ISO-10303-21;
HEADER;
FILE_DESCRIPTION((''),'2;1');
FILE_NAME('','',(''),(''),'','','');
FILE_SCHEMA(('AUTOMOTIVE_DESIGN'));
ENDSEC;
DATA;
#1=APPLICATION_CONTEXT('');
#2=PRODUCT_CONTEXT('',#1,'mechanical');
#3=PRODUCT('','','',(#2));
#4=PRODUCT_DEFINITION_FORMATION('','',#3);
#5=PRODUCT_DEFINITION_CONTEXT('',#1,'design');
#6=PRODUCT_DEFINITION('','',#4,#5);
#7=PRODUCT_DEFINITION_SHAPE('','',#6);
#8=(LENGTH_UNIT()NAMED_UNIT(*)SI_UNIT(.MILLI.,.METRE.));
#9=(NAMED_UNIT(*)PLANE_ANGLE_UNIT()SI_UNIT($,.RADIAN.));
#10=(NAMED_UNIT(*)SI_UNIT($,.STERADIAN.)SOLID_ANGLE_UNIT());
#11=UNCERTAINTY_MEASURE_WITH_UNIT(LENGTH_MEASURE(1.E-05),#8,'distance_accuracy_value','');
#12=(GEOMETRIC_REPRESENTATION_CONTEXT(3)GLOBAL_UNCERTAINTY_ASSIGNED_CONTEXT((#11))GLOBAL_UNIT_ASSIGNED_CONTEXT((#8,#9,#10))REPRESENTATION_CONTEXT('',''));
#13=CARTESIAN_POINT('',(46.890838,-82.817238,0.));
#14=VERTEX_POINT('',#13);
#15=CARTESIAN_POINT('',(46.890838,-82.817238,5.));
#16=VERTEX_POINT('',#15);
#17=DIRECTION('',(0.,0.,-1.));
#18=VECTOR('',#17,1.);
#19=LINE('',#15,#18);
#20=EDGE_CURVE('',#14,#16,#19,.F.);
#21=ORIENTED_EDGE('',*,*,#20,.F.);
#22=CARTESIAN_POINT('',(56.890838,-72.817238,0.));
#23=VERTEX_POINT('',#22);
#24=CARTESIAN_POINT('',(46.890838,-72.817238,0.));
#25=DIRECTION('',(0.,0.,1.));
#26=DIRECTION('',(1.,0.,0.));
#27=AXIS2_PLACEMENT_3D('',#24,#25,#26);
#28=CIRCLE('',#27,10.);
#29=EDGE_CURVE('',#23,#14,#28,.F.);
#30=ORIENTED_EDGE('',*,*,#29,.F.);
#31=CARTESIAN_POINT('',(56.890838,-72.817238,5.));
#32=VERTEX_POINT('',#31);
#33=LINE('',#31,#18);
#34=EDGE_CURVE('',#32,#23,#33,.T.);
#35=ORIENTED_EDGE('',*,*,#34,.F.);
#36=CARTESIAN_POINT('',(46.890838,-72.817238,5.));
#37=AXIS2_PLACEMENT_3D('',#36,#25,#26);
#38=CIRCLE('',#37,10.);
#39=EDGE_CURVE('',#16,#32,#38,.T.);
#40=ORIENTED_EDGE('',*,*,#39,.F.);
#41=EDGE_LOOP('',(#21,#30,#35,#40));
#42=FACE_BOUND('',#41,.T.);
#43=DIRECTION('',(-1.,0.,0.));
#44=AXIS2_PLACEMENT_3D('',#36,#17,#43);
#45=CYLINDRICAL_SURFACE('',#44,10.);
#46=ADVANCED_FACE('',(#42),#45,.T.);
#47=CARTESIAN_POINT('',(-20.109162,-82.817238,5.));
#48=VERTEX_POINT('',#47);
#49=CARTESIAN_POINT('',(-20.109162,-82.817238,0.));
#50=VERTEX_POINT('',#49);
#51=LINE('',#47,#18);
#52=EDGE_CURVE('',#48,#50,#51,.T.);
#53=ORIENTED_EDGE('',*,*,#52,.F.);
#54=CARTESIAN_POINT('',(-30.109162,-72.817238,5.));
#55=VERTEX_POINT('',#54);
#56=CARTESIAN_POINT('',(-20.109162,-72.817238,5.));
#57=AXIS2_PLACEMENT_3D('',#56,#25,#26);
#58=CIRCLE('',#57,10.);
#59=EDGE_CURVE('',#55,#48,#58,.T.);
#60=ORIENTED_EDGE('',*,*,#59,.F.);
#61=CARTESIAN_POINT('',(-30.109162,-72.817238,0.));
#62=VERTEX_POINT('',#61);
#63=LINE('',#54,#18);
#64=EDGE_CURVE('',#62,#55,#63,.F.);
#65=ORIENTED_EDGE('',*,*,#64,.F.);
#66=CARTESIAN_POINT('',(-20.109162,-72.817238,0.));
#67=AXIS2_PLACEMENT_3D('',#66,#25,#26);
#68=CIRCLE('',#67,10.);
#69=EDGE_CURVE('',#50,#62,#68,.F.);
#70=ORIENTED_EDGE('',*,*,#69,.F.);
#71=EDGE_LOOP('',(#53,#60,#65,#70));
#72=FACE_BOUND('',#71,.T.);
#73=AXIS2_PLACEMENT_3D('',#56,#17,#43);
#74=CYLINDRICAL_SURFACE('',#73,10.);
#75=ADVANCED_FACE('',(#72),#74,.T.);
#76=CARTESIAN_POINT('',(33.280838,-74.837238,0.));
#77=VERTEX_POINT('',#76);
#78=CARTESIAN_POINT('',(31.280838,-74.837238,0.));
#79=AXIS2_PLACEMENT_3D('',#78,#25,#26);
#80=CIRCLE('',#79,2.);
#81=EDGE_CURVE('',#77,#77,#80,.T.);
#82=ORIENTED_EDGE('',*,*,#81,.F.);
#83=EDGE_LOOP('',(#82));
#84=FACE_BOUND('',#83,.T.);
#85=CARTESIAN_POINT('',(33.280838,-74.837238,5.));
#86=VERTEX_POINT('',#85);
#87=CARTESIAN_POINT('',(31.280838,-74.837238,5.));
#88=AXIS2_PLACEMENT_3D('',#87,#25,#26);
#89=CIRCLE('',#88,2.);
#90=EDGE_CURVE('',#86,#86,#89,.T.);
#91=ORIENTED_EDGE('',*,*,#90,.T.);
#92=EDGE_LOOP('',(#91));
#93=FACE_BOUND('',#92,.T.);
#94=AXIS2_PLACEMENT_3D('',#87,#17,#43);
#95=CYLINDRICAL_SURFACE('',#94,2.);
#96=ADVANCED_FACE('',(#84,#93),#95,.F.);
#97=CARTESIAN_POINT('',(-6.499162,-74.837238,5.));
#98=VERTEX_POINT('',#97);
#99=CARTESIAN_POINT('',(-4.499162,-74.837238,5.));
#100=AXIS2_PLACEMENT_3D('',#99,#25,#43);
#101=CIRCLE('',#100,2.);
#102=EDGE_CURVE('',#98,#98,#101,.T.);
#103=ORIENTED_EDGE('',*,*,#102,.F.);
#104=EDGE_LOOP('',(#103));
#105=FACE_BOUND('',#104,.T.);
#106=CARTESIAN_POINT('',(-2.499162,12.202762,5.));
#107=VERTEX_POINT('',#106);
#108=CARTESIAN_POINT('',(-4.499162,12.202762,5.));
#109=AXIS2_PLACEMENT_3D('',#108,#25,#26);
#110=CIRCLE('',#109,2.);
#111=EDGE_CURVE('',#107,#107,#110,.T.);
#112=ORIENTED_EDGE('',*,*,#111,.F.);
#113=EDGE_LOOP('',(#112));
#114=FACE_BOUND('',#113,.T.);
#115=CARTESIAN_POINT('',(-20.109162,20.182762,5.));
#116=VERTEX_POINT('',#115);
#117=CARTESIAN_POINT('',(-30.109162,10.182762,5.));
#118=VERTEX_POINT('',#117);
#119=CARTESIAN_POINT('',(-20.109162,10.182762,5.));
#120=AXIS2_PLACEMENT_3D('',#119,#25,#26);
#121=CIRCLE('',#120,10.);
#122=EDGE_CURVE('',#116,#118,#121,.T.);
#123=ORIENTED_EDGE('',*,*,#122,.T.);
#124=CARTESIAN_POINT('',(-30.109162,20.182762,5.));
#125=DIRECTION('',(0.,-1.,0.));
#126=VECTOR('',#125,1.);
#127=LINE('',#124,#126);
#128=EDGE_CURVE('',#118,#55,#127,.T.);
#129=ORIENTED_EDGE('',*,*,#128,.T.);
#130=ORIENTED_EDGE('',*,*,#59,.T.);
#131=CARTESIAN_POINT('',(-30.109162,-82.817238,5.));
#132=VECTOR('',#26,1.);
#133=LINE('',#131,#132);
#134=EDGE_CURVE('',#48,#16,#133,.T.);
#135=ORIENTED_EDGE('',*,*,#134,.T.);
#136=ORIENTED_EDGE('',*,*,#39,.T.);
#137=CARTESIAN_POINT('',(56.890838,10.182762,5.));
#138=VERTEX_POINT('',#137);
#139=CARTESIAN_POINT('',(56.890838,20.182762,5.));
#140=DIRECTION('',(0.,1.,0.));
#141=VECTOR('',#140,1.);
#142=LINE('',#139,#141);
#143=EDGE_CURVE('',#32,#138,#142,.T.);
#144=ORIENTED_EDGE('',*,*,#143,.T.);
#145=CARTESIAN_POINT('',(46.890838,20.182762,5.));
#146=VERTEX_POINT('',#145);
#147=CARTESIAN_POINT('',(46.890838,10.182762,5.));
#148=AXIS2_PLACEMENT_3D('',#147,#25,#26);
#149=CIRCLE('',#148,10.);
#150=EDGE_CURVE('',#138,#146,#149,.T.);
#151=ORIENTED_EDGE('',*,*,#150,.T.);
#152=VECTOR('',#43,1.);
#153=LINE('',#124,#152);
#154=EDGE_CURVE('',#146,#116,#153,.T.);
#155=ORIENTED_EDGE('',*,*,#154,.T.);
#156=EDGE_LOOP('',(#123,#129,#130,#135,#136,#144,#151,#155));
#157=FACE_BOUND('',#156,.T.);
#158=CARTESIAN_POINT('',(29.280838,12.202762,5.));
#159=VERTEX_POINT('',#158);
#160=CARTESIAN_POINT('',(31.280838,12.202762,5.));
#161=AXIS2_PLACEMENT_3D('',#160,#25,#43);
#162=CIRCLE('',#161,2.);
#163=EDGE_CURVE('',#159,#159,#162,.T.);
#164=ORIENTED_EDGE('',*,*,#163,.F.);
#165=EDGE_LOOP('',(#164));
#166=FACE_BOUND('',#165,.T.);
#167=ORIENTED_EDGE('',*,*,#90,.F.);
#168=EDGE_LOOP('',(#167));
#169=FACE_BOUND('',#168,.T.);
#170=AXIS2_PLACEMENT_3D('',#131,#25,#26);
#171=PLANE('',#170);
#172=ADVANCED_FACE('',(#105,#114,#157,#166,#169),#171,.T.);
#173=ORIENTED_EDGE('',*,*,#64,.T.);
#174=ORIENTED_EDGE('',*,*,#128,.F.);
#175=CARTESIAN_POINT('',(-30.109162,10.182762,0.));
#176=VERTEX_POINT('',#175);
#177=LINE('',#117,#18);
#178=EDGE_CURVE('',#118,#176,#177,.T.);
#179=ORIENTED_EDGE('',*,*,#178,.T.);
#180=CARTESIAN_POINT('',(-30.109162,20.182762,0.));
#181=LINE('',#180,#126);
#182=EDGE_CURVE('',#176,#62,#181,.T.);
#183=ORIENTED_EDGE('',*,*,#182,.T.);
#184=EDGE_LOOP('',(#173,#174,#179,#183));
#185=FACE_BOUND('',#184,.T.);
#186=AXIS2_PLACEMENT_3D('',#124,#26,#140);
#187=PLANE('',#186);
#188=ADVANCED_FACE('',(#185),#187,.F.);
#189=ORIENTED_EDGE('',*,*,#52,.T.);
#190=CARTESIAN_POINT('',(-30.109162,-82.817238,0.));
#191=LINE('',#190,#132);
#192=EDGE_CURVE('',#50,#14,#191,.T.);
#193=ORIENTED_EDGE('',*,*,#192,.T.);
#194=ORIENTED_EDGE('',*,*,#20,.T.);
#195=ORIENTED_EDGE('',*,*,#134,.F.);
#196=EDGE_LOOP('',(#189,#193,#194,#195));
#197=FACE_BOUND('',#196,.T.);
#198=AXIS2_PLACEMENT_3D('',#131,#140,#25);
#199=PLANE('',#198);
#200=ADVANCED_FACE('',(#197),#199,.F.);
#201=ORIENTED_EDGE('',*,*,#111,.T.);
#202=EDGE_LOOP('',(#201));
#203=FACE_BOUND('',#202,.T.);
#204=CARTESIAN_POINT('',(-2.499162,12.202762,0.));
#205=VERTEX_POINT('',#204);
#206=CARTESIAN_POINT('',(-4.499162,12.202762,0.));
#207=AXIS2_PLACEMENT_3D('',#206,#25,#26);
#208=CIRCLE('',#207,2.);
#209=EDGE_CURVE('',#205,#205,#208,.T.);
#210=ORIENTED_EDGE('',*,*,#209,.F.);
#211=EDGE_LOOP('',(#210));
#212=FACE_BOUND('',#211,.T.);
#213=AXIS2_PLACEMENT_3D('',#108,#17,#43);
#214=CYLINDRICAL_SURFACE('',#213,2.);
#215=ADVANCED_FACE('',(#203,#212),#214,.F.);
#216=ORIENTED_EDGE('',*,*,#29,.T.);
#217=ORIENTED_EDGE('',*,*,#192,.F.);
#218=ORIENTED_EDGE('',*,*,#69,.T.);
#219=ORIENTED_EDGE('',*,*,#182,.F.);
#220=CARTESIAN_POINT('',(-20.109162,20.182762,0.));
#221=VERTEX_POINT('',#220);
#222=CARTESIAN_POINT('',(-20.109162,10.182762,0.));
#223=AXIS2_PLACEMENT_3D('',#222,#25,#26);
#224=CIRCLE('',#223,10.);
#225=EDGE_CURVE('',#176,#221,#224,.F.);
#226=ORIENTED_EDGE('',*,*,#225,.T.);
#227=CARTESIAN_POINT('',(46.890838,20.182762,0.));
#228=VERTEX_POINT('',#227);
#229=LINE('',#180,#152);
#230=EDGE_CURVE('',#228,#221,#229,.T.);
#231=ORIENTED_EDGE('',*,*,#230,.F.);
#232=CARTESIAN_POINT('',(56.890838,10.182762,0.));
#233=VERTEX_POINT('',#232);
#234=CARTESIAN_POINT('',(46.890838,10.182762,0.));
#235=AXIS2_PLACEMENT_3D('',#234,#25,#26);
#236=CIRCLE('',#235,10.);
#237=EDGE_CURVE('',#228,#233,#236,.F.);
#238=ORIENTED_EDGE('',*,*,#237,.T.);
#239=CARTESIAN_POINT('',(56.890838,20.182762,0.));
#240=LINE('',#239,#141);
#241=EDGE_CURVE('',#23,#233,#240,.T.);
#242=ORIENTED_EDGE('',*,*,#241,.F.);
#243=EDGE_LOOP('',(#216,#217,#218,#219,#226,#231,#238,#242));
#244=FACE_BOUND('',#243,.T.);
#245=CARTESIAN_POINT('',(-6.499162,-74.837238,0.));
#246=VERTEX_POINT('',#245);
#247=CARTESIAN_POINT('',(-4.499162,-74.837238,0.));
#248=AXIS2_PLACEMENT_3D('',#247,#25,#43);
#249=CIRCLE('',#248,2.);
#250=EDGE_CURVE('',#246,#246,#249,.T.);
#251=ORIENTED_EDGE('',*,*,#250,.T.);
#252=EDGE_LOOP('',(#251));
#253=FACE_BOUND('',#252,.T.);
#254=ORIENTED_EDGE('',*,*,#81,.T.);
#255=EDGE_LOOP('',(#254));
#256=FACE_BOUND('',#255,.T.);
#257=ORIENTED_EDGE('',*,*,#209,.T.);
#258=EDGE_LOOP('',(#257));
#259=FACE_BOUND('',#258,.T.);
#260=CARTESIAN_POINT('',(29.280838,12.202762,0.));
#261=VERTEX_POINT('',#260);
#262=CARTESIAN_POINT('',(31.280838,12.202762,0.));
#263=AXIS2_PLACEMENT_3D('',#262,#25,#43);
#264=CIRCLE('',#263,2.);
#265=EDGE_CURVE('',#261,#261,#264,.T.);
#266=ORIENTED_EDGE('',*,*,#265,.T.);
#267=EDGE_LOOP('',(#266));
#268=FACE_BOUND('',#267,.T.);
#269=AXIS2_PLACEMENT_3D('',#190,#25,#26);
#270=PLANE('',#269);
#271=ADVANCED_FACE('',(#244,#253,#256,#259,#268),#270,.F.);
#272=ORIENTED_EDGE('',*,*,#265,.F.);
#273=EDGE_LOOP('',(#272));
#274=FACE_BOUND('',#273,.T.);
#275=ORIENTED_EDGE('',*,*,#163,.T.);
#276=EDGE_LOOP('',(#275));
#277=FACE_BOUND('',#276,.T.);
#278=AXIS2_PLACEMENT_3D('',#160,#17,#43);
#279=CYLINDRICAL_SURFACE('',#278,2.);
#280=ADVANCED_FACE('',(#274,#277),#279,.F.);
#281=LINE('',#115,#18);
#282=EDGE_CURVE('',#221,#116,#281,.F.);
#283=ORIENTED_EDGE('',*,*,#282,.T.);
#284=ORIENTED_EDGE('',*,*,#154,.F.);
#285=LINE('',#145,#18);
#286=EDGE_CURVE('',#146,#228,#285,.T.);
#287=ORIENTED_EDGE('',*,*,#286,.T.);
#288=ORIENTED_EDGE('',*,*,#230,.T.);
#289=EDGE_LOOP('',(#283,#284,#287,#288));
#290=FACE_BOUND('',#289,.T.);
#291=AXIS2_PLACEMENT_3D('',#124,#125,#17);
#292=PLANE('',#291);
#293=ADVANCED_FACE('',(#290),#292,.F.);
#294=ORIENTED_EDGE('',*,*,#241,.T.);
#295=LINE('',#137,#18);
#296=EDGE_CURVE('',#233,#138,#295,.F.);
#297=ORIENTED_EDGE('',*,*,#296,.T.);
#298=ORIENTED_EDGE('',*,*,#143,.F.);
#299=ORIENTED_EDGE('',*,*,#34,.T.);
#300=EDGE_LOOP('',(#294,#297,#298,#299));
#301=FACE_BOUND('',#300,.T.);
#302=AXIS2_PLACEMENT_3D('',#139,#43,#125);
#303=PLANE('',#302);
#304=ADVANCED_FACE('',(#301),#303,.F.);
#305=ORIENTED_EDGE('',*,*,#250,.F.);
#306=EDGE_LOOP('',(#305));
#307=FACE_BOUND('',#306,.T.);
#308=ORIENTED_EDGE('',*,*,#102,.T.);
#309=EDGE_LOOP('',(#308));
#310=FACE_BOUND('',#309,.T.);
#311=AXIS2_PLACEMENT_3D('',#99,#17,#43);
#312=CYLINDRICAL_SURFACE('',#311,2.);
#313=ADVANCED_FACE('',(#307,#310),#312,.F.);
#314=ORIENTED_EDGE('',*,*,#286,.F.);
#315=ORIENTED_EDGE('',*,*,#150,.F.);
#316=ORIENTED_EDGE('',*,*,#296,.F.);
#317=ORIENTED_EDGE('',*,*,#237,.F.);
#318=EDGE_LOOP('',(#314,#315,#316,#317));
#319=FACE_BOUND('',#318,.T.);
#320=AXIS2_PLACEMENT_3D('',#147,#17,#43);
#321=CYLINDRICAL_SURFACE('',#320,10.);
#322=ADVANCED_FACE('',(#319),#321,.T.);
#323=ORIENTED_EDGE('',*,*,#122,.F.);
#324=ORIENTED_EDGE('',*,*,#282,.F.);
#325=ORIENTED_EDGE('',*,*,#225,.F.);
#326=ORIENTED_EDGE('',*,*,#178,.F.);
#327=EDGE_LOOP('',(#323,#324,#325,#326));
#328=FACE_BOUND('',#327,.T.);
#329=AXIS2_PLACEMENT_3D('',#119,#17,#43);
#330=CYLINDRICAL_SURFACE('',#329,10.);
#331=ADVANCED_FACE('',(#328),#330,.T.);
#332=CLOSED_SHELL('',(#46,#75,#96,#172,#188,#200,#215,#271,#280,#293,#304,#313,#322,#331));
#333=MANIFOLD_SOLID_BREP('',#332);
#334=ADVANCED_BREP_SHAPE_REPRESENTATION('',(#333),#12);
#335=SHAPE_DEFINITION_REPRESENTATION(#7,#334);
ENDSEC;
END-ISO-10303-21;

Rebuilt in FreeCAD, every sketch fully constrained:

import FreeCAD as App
import Part
import Sketcher
from FreeCAD import Vector


def edges_at(feature, points):
    """Names of the edges that pass closest to the given points."""
    edges = feature.Shape.Edges
    near = lambda p: min(range(len(edges)), key=lambda i: edges[i].distToShape(Part.Vertex(*p))[0])
    return sorted({f"Edge{near(p) + 1}" for p in points})


def add_polygon(sketch, points):
    """Adds a closed chain of lines whose ends are joined by coincident constraints."""
    first, n = sketch.GeometryCount, len(points)
    for a, b in zip(points, points[1:] + points[:1]):
        sketch.addGeometry(Part.LineSegment(App.Vector(*a, 0), App.Vector(*b, 0)), False)
    for i in range(n):
        sketch.addConstraint(Sketcher.Constraint("Coincident", first + i, 2, first + (i + 1) % n, 1))

doc = App.newDocument("Part")
body = doc.addObject("PartDesign::Body", "Body")

# Sketch on XY plane
sketch1 = body.newObject("Sketcher::SketchObject", "Sketch")
sketch1.AttachmentSupport = (doc.getObject("XY_Plane"), [""])
sketch1.MapMode = "FlatFace"
add_polygon(sketch1, [(-30.109162, 20.182762), (-30.109162, -82.817238), (56.890838, -82.817238), (56.890838, 20.182762)])  # lines 0-3
sketch1.addGeometry(Part.Circle(Vector(-4.499162, -74.837238, 0), Vector(0, 0, 1), 2), False)  # 4
sketch1.addGeometry(Part.Circle(Vector(31.280838, -74.837238, 0), Vector(0, 0, 1), 2), False)  # 5
sketch1.addGeometry(Part.Circle(Vector(-4.499162, 12.202762, 0), Vector(0, 0, 1), 2), False)  # 6
sketch1.addGeometry(Part.Circle(Vector(31.280838, 12.202762, 0), Vector(0, 0, 1), 2), False)  # 7
sketch1.addConstraint([
    Sketcher.Constraint("Vertical", 0),
    Sketcher.Constraint("Horizontal", 1),
    Sketcher.Constraint("Vertical", 2),
    Sketcher.Constraint("Horizontal", 3),
    Sketcher.Constraint("Equal", 4, 5),
    Sketcher.Constraint("Equal", 5, 6),
    Sketcher.Constraint("Equal", 6, 7),
    Sketcher.Constraint("Horizontal", 4, 3, 5, 3),
    Sketcher.Constraint("Horizontal", 6, 3, 7, 3),
    Sketcher.Constraint("Vertical", 4, 3, 6, 3),
    Sketcher.Constraint("Vertical", 5, 3, 7, 3),
    Sketcher.Constraint("Diameter", 4, 4.0),
    Sketcher.Constraint("DistanceX", 1, 1, 1, 2, 87.0),
    Sketcher.Constraint("DistanceY", 0, 2, 0, 1, 103.0),
    Sketcher.Constraint("DistanceX", 4, 3, 5, 3, 35.78),
    Sketcher.Constraint("DistanceY", 4, 3, 6, 3, 87.04),
    Sketcher.Constraint("DistanceX", 0, 2, 4, 3, 25.61),
    Sketcher.Constraint("DistanceY", 0, 2, 4, 3, 7.98),
    Sketcher.Constraint("DistanceX", 4, 3, -1, 1, 4.499162),
    Sketcher.Constraint("DistanceY", 4, 3, -1, 1, 74.837238),
])
pad1 = body.newObject("PartDesign::Pad", "Pad")
pad1.Profile = sketch1
pad1.Length = 5
doc.recompute()

fillet = body.newObject("PartDesign::Fillet", "Fillet")
fillet.Base = (pad1, edges_at(pad1, [
    (-30.109, 20.183, 2.5),
    (56.891, 20.183, 2.5),
    (56.891, -82.817, 2.5),
    (-30.109, -82.817, 2.5),
]))
fillet.Radius = 10

doc.recompute()
